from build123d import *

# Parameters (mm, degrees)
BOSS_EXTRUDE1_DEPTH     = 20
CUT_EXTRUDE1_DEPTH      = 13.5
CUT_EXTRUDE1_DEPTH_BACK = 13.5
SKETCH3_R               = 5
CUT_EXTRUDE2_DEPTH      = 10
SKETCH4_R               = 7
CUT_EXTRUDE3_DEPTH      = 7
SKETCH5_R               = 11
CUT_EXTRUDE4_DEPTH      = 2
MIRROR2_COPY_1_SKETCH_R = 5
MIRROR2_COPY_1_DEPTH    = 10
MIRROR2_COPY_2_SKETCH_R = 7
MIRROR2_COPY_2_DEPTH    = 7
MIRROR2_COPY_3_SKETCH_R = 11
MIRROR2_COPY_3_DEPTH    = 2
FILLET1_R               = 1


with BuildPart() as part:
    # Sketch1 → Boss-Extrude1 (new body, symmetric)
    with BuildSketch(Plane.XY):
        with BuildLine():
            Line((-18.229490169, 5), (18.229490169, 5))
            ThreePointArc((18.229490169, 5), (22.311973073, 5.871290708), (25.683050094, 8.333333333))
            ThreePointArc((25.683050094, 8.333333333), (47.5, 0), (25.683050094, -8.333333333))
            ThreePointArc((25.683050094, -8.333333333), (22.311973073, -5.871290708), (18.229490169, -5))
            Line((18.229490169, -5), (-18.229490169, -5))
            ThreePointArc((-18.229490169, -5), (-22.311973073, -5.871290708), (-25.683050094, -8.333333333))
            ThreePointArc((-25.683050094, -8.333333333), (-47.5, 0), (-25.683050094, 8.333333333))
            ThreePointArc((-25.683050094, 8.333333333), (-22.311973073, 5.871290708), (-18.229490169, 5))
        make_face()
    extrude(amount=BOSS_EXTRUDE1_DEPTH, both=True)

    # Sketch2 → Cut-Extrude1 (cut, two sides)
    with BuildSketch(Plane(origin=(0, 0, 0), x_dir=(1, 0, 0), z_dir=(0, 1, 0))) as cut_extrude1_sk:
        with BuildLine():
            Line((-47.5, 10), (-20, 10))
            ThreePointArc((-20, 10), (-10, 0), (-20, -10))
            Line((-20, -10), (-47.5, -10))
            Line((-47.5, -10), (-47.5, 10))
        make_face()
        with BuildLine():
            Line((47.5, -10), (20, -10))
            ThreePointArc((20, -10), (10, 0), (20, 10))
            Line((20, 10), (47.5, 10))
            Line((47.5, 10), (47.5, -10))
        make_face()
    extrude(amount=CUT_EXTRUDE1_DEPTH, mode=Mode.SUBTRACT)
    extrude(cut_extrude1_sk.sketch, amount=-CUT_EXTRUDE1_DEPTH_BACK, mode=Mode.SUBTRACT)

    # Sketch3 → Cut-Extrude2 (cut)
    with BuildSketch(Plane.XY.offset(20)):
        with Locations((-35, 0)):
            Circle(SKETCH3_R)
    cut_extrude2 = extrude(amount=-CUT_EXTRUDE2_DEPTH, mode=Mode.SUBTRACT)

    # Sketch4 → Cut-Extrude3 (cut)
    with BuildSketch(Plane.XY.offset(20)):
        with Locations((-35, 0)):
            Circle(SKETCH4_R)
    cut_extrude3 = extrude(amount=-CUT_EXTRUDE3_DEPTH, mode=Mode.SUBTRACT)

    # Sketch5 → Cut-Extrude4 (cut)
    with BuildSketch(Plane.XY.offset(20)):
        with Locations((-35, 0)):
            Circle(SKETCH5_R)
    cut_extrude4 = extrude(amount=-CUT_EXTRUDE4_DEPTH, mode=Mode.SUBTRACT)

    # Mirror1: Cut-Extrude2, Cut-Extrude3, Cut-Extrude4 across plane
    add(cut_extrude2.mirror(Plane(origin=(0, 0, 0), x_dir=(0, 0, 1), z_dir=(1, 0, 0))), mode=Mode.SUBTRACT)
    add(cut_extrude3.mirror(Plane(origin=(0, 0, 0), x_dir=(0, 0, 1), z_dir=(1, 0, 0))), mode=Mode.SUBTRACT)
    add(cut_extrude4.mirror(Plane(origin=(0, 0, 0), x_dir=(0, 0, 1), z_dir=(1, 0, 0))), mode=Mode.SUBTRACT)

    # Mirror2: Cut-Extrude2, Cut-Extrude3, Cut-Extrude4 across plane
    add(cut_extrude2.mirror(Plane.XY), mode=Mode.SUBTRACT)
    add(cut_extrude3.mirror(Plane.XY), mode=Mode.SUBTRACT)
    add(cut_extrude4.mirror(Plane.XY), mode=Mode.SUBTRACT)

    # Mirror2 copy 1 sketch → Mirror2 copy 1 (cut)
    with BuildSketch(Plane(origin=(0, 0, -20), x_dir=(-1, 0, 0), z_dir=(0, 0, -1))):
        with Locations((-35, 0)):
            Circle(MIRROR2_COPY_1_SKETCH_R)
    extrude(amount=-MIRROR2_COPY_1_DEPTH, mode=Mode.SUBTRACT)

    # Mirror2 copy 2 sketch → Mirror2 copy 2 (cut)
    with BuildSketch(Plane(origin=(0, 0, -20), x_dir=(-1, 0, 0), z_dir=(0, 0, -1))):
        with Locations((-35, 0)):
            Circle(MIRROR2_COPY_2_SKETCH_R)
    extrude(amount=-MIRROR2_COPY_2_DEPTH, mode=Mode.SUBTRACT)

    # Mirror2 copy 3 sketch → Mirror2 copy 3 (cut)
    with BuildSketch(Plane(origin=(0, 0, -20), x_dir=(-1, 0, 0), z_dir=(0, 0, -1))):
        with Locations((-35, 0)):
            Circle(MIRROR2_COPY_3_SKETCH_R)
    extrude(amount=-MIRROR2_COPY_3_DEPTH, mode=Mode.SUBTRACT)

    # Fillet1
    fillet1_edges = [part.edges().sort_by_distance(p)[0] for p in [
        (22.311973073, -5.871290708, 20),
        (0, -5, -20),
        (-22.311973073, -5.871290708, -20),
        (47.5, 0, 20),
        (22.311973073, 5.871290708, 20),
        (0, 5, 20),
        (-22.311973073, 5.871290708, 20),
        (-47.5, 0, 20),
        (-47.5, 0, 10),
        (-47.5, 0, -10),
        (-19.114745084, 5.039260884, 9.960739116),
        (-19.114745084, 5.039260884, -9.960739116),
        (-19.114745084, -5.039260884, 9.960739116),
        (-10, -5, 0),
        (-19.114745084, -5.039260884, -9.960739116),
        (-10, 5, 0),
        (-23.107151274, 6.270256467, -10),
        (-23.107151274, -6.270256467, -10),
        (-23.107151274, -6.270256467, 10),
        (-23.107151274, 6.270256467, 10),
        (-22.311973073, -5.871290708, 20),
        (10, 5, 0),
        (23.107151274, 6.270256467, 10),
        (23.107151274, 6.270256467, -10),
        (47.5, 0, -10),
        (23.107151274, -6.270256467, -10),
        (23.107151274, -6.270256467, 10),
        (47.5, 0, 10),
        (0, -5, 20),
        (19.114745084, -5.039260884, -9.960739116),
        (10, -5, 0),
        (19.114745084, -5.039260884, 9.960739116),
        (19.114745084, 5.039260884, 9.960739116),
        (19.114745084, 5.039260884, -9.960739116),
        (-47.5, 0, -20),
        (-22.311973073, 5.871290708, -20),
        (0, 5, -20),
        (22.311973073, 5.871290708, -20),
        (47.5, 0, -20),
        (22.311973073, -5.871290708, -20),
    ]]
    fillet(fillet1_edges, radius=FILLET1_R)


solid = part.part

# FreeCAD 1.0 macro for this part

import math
import FreeCAD as App
import Part
import Sketcher
Q = App.Units.Quantity


def edges_at(feature, points):
    """Names of the edges that pass closest to the given points."""
    edges = feature.Shape.Edges
    near = lambda p: min(range(len(edges)), key=lambda i: edges[i].distToShape(Part.Vertex(*p))[0])
    return sorted({f"Edge{near(p) + 1}" for p in points})

doc = App.newDocument("Part")
params = doc.addObject("Spreadsheet::Sheet", "Params")
for row, (alias, value) in enumerate([
    ("sketch1_radius", "10 mm"),
    ("sketch1_radius2", "12.5 mm"),
    ("pad1_length", "40 mm"),
    ("sketch2_radius", "10 mm"),
    ("sketch2_width", "27.5 mm"),
    ("sketch3_diameter", "10 mm"),
    ("pocket2_length", "10 mm"),
    ("sketch4_diameter", "14 mm"),
    ("pocket3_length", "7 mm"),
    ("sketch5_diameter", "22 mm"),
    ("pocket4_length", "2 mm"),
    ("sketch6_diameter", "10 mm"),
    ("pocket5_length", "10 mm"),
    ("sketch7_diameter", "14 mm"),
    ("pocket6_length", "7 mm"),
    ("sketch8_diameter", "22 mm"),
    ("pocket7_length", "2 mm"),
    ("fillet_radius", "1 mm"),
], start=1):
    params.set(f"A{row}", alias)
    params.set(f"B{row}", "=" + value)
    params.setAlias(f"B{row}", alias)

body = doc.addObject("PartDesign::Body", "Body")

sketch1 = body.newObject("Sketcher::SketchObject", "Sketch")
sketch1.AttachmentSupport = (doc.getObject("XY_Plane"), [""])
sketch1.MapMode = "FlatFace"
sketch1.addGeometry(Part.LineSegment(App.Vector(18, 5, 0), App.Vector(-18, 5, 0)), False)
sketch1.addGeometry(Part.ArcOfCircle(Part.Circle(App.Vector(-18, 15, 0), App.Vector(0, 0, 1), 10), math.radians(-138), math.radians(-90)), False)
sketch1.addGeometry(Part.ArcOfCircle(Part.Circle(App.Vector(-35, 0, 0), App.Vector(0, 0, 1), 12), math.radians(42), math.radians(318)), False)
sketch1.addGeometry(Part.ArcOfCircle(Part.Circle(App.Vector(-18, -15, 0), App.Vector(0, 0, 1), 10), math.radians(90), math.radians(138)), False)
sketch1.addGeometry(Part.LineSegment(App.Vector(-18, -5, 0), App.Vector(18, -5, 0)), False)
sketch1.addGeometry(Part.ArcOfCircle(Part.Circle(App.Vector(18, -15, 0), App.Vector(0, 0, 1), 10), math.radians(42), math.radians(90)), False)
sketch1.addGeometry(Part.ArcOfCircle(Part.Circle(App.Vector(35, 0, 0), App.Vector(0, 0, 1), 12), math.radians(-138), math.radians(138)), False)
sketch1.addGeometry(Part.ArcOfCircle(Part.Circle(App.Vector(18, 15, 0), App.Vector(0, 0, 1), 10), math.radians(-90), math.radians(-42)), False)
sketch1.addConstraint(Sketcher.Constraint("Tangent", 0, 2, 1, 2))
sketch1.addConstraint(Sketcher.Constraint("Tangent", 1, 1, 2, 1))
sketch1.addConstraint(Sketcher.Constraint("Tangent", 2, 2, 3, 2))
sketch1.addConstraint(Sketcher.Constraint("Tangent", 3, 1, 4, 1))
sketch1.addConstraint(Sketcher.Constraint("Tangent", 4, 2, 5, 2))
sketch1.addConstraint(Sketcher.Constraint("Tangent", 5, 1, 6, 1))
sketch1.addConstraint(Sketcher.Constraint("Tangent", 6, 2, 7, 2))
sketch1.addConstraint(Sketcher.Constraint("Tangent", 7, 1, 0, 1))
sketch1.addConstraint(Sketcher.Constraint("Horizontal", 0))
sketch1.addConstraint(Sketcher.Constraint("Horizontal", 4))
sketch1.addConstraint(Sketcher.Constraint("Equal", 1, 3))
sketch1.addConstraint(Sketcher.Constraint("Equal", 3, 5))
sketch1.addConstraint(Sketcher.Constraint("Equal", 2, 6))
sketch1.addConstraint(Sketcher.Constraint("Equal", 5, 7))
sketch1.addConstraint(Sketcher.Constraint("Symmetric", 1, 3, 5, 3, -1, 1))
sketch1.addConstraint(Sketcher.Constraint("Symmetric", 2, 3, 6, 3, -2))
sketch1.addConstraint(Sketcher.Constraint("Radius", 1, Q("10 mm")))
sketch1.addConstraint(Sketcher.Constraint("Radius", 2, Q("12.5 mm")))
sketch1.addConstraint(Sketcher.Constraint("DistanceY", -1, 1, 1, 3, Q("15 mm")))
sketch1.addConstraint(Sketcher.Constraint("DistanceX", 2, 3, -1, 1, Q("35 mm")))
sketch1.setExpression("Constraints[16]", "Params.sketch1_radius")
sketch1.setExpression("Constraints[17]", "Params.sketch1_radius2")
pad1 = body.newObject("PartDesign::Pad", "Pad")
pad1.Profile = sketch1
pad1.setExpression("Length", "Params.pad1_length")
pad1.Midplane = True

sketch2 = body.newObject("Sketcher::SketchObject", "Sketch001")
sketch2.AttachmentSupport = (doc.getObject("XZ_Plane"), [""])
sketch2.MapMode = "FlatFace"
sketch2.addGeometry(Part.LineSegment(App.Vector(-20, -10, 0), App.Vector(-48, -10, 0)), False)
sketch2.addGeometry(Part.LineSegment(App.Vector(-48, -10, 0), App.Vector(-48, 10, 0)), False)
sketch2.addGeometry(Part.LineSegment(App.Vector(-48, 10, 0), App.Vector(-20, 10, 0)), False)
sketch2.addGeometry(Part.ArcOfCircle(Part.Circle(App.Vector(-20, 0, 0), App.Vector(0, 0, 1), 10), math.radians(-90), math.radians(90)), False)
sketch2.addGeometry(Part.LineSegment(App.Vector(20, 10, 0), App.Vector(48, 10, 0)), False)
sketch2.addGeometry(Part.LineSegment(App.Vector(48, 10, 0), App.Vector(48, -10, 0)), False)
sketch2.addGeometry(Part.LineSegment(App.Vector(48, -10, 0), App.Vector(20, -10, 0)), False)
sketch2.addGeometry(Part.ArcOfCircle(Part.Circle(App.Vector(20, 0, 0), App.Vector(0, 0, 1), 10), math.radians(90), math.radians(270)), False)
sketch2.addConstraint(Sketcher.Constraint("Coincident", 0, 2, 1, 1))
sketch2.addConstraint(Sketcher.Constraint("Coincident", 1, 2, 2, 1))
sketch2.addConstraint(Sketcher.Constraint("Tangent", 2, 2, 3, 2))
sketch2.addConstraint(Sketcher.Constraint("Tangent", 3, 1, 0, 1))
sketch2.addConstraint(Sketcher.Constraint("Coincident", 4, 2, 5, 1))
sketch2.addConstraint(Sketcher.Constraint("Coincident", 5, 2, 6, 1))
sketch2.addConstraint(Sketcher.Constraint("Tangent", 6, 2, 7, 2))
sketch2.addConstraint(Sketcher.Constraint("Tangent", 7, 1, 4, 1))
sketch2.addConstraint(Sketcher.Constraint("Horizontal", 0))
sketch2.addConstraint(Sketcher.Constraint("Vertical", 1))
sketch2.addConstraint(Sketcher.Constraint("Horizontal", 2))
sketch2.addConstraint(Sketcher.Constraint("Horizontal", 4))
sketch2.addConstraint(Sketcher.Constraint("Vertical", 5))
sketch2.addConstraint(Sketcher.Constraint("Horizontal", 6))
sketch2.addConstraint(Sketcher.Constraint("Equal", 3, 7))
sketch2.addConstraint(Sketcher.Constraint("Symmetric", 3, 3, 7, 3, -1, 1))
sketch2.addConstraint(Sketcher.Constraint("Symmetric", 1, 2, 4, 2, -2))
sketch2.addConstraint(Sketcher.Constraint("Radius", 3, Q("10 mm")))
sketch2.addConstraint(Sketcher.Constraint("DistanceX", 0, 2, 0, 1, Q("27.5 mm")))
sketch2.addConstraint(Sketcher.Constraint("DistanceX", 3, 3, -1, 1, Q("20 mm")))
sketch2.setExpression("Constraints[17]", "Params.sketch2_radius")
sketch2.setExpression("Constraints[18]", "Params.sketch2_width")
pocket1 = body.newObject("PartDesign::Pocket", "Pocket")
pocket1.Profile = sketch2
pocket1.Type = "ThroughAll"
pocket1.Midplane = True

sketch3 = body.newObject("Sketcher::SketchObject", "Sketch002")
sketch3.AttachmentSupport = (doc.getObject("XY_Plane"), [""])
sketch3.MapMode = "FlatFace"
sketch3.AttachmentOffset = App.Placement(App.Vector(0, 0, 20), App.Rotation())
sketch3.addGeometry(Part.Circle(App.Vector(-35, 0, 0), App.Vector(0, 0, 1), 5), False)
sketch3.addConstraint(Sketcher.Constraint("PointOnObject", 0, 3, -1))
sketch3.addConstraint(Sketcher.Constraint("Diameter", 0, Q("10 mm")))
sketch3.addConstraint(Sketcher.Constraint("DistanceX", 0, 3, -1, 1, Q("35 mm")))
sketch3.setExpression("Constraints[1]", "Params.sketch3_diameter")
pocket2 = body.newObject("PartDesign::Pocket", "Pocket001")
pocket2.Profile = sketch3
pocket2.setExpression("Length", "Params.pocket2_length")

sketch4 = body.newObject("Sketcher::SketchObject", "Sketch003")
sketch4.AttachmentSupport = (doc.getObject("XY_Plane"), [""])
sketch4.MapMode = "FlatFace"
sketch4.AttachmentOffset = App.Placement(App.Vector(0, 0, 20), App.Rotation())
sketch4.addGeometry(Part.Circle(App.Vector(-35, 0, 0), App.Vector(0, 0, 1), 7), False)
sketch4.addConstraint(Sketcher.Constraint("PointOnObject", 0, 3, -1))
sketch4.addConstraint(Sketcher.Constraint("Diameter", 0, Q("14 mm")))
sketch4.addConstraint(Sketcher.Constraint("DistanceX", 0, 3, -1, 1, Q("35 mm")))
sketch4.setExpression("Constraints[1]", "Params.sketch4_diameter")
pocket3 = body.newObject("PartDesign::Pocket", "Pocket002")
pocket3.Profile = sketch4
pocket3.setExpression("Length", "Params.pocket3_length")

sketch5 = body.newObject("Sketcher::SketchObject", "Sketch004")
sketch5.AttachmentSupport = (doc.getObject("XY_Plane"), [""])
sketch5.MapMode = "FlatFace"
sketch5.AttachmentOffset = App.Placement(App.Vector(0, 0, 20), App.Rotation())
sketch5.addGeometry(Part.Circle(App.Vector(-35, 0, 0), App.Vector(0, 0, 1), 11), False)
sketch5.addConstraint(Sketcher.Constraint("PointOnObject", 0, 3, -1))
sketch5.addConstraint(Sketcher.Constraint("Diameter", 0, Q("22 mm")))
sketch5.addConstraint(Sketcher.Constraint("DistanceX", 0, 3, -1, 1, Q("35 mm")))
sketch5.setExpression("Constraints[1]", "Params.sketch5_diameter")
pocket4 = body.newObject("PartDesign::Pocket", "Pocket003")
pocket4.Profile = sketch5
pocket4.setExpression("Length", "Params.pocket4_length")
doc.recompute()

mirrored = body.newObject("PartDesign::Mirrored", "Mirrored")
mirrored.Originals = [pocket2, pocket3, pocket4]
mirrored.MirrorPlane = (doc.getObject("YZ_Plane"), [""])
body.Tip = mirrored
doc.recompute()

mirrored2 = body.newObject("PartDesign::Mirrored", "Mirrored001")
mirrored2.Originals = [pocket2, pocket3, pocket4]
mirrored2.MirrorPlane = (doc.getObject("XY_Plane"), [""])
body.Tip = mirrored2

sketch6 = body.newObject("Sketcher::SketchObject", "Sketch005")
sketch6.AttachmentSupport = (doc.getObject("XY_Plane"), [""])
sketch6.MapMode = "FlatFace"
sketch6.AttachmentOffset = App.Placement(App.Vector(0, 0, -20), App.Rotation())
sketch6.addGeometry(Part.Circle(App.Vector(35, 0, 0), App.Vector(0, 0, 1), 5), False)
sketch6.addConstraint(Sketcher.Constraint("PointOnObject", 0, 3, -1))
sketch6.addConstraint(Sketcher.Constraint("Diameter", 0, Q("10 mm")))
sketch6.addConstraint(Sketcher.Constraint("DistanceX", -1, 1, 0, 3, Q("35 mm")))
sketch6.setExpression("Constraints[1]", "Params.sketch6_diameter")
pocket5 = body.newObject("PartDesign::Pocket", "Pocket004")
pocket5.Profile = sketch6
pocket5.setExpression("Length", "Params.pocket5_length")
pocket5.Reversed = True

sketch7 = body.newObject("Sketcher::SketchObject", "Sketch006")
sketch7.AttachmentSupport = (doc.getObject("XY_Plane"), [""])
sketch7.MapMode = "FlatFace"
sketch7.AttachmentOffset = App.Placement(App.Vector(0, 0, -20), App.Rotation())
sketch7.addGeometry(Part.Circle(App.Vector(35, 0, 0), App.Vector(0, 0, 1), 7), False)
sketch7.addConstraint(Sketcher.Constraint("PointOnObject", 0, 3, -1))
sketch7.addConstraint(Sketcher.Constraint("Diameter", 0, Q("14 mm")))
sketch7.addConstraint(Sketcher.Constraint("DistanceX", -1, 1, 0, 3, Q("35 mm")))
sketch7.setExpression("Constraints[1]", "Params.sketch7_diameter")
pocket6 = body.newObject("PartDesign::Pocket", "Pocket005")
pocket6.Profile = sketch7
pocket6.setExpression("Length", "Params.pocket6_length")
pocket6.Reversed = True

sketch8 = body.newObject("Sketcher::SketchObject", "Sketch007")
sketch8.AttachmentSupport = (doc.getObject("XY_Plane"), [""])
sketch8.MapMode = "FlatFace"
sketch8.AttachmentOffset = App.Placement(App.Vector(0, 0, -20), App.Rotation())
sketch8.addGeometry(Part.Circle(App.Vector(35, 0, 0), App.Vector(0, 0, 1), 11), False)
sketch8.addConstraint(Sketcher.Constraint("PointOnObject", 0, 3, -1))
sketch8.addConstraint(Sketcher.Constraint("Diameter", 0, Q("22 mm")))
sketch8.addConstraint(Sketcher.Constraint("DistanceX", -1, 1, 0, 3, Q("35 mm")))
sketch8.setExpression("Constraints[1]", "Params.sketch8_diameter")
pocket7 = body.newObject("PartDesign::Pocket", "Pocket006")
pocket7.Profile = sketch8
pocket7.setExpression("Length", "Params.pocket7_length")
pocket7.Reversed = True
doc.recompute()

fillet = body.newObject("PartDesign::Fillet", "Fillet")
fillet.Base = (pocket7, edges_at(pocket7, [
    (22.312, -5.871, 20),
    (0, -5, -20),
    (-22.312, -5.871, -20),
    (47.5, 0, 20),
    (22.312, 5.871, 20),
    (0, 5, 20),
    (-22.312, 5.871, 20),
    (-47.5, 0, 20),
    (-47.5, 0, 10),
    (-47.5, 0, -10),
    (-19.115, 5.039, 9.961),
    (-19.115, 5.039, -9.961),
    (-19.115, -5.039, 9.961),
    (-10, -5, 0),
    (-19.115, -5.039, -9.961),
    (-10, 5, 0),
    (-23.107, 6.27, -10),
    (-23.107, -6.27, -10),
    (-23.107, -6.27, 10),
    (-23.107, 6.27, 10),
    (-22.312, -5.871, 20),
    (10, 5, 0),
    (23.107, 6.27, 10),
    (23.107, 6.27, -10),
    (47.5, 0, -10),
    (23.107, -6.27, -10),
    (23.107, -6.27, 10),
    (47.5, 0, 10),
    (0, -5, 20),
    (19.115, -5.039, -9.961),
    (10, -5, 0),
    (19.115, -5.039, 9.961),
    (19.115, 5.039, 9.961),
    (19.115, 5.039, -9.961),
    (-47.5, 0, -20),
    (-22.312, 5.871, -20),
    (0, 5, -20),
    (22.312, 5.871, -20),
    (47.5, 0, -20),
    (22.312, -5.871, -20),
]))
fillet.setExpression("Radius", "Params.fillet_radius")

doc.recompute()
